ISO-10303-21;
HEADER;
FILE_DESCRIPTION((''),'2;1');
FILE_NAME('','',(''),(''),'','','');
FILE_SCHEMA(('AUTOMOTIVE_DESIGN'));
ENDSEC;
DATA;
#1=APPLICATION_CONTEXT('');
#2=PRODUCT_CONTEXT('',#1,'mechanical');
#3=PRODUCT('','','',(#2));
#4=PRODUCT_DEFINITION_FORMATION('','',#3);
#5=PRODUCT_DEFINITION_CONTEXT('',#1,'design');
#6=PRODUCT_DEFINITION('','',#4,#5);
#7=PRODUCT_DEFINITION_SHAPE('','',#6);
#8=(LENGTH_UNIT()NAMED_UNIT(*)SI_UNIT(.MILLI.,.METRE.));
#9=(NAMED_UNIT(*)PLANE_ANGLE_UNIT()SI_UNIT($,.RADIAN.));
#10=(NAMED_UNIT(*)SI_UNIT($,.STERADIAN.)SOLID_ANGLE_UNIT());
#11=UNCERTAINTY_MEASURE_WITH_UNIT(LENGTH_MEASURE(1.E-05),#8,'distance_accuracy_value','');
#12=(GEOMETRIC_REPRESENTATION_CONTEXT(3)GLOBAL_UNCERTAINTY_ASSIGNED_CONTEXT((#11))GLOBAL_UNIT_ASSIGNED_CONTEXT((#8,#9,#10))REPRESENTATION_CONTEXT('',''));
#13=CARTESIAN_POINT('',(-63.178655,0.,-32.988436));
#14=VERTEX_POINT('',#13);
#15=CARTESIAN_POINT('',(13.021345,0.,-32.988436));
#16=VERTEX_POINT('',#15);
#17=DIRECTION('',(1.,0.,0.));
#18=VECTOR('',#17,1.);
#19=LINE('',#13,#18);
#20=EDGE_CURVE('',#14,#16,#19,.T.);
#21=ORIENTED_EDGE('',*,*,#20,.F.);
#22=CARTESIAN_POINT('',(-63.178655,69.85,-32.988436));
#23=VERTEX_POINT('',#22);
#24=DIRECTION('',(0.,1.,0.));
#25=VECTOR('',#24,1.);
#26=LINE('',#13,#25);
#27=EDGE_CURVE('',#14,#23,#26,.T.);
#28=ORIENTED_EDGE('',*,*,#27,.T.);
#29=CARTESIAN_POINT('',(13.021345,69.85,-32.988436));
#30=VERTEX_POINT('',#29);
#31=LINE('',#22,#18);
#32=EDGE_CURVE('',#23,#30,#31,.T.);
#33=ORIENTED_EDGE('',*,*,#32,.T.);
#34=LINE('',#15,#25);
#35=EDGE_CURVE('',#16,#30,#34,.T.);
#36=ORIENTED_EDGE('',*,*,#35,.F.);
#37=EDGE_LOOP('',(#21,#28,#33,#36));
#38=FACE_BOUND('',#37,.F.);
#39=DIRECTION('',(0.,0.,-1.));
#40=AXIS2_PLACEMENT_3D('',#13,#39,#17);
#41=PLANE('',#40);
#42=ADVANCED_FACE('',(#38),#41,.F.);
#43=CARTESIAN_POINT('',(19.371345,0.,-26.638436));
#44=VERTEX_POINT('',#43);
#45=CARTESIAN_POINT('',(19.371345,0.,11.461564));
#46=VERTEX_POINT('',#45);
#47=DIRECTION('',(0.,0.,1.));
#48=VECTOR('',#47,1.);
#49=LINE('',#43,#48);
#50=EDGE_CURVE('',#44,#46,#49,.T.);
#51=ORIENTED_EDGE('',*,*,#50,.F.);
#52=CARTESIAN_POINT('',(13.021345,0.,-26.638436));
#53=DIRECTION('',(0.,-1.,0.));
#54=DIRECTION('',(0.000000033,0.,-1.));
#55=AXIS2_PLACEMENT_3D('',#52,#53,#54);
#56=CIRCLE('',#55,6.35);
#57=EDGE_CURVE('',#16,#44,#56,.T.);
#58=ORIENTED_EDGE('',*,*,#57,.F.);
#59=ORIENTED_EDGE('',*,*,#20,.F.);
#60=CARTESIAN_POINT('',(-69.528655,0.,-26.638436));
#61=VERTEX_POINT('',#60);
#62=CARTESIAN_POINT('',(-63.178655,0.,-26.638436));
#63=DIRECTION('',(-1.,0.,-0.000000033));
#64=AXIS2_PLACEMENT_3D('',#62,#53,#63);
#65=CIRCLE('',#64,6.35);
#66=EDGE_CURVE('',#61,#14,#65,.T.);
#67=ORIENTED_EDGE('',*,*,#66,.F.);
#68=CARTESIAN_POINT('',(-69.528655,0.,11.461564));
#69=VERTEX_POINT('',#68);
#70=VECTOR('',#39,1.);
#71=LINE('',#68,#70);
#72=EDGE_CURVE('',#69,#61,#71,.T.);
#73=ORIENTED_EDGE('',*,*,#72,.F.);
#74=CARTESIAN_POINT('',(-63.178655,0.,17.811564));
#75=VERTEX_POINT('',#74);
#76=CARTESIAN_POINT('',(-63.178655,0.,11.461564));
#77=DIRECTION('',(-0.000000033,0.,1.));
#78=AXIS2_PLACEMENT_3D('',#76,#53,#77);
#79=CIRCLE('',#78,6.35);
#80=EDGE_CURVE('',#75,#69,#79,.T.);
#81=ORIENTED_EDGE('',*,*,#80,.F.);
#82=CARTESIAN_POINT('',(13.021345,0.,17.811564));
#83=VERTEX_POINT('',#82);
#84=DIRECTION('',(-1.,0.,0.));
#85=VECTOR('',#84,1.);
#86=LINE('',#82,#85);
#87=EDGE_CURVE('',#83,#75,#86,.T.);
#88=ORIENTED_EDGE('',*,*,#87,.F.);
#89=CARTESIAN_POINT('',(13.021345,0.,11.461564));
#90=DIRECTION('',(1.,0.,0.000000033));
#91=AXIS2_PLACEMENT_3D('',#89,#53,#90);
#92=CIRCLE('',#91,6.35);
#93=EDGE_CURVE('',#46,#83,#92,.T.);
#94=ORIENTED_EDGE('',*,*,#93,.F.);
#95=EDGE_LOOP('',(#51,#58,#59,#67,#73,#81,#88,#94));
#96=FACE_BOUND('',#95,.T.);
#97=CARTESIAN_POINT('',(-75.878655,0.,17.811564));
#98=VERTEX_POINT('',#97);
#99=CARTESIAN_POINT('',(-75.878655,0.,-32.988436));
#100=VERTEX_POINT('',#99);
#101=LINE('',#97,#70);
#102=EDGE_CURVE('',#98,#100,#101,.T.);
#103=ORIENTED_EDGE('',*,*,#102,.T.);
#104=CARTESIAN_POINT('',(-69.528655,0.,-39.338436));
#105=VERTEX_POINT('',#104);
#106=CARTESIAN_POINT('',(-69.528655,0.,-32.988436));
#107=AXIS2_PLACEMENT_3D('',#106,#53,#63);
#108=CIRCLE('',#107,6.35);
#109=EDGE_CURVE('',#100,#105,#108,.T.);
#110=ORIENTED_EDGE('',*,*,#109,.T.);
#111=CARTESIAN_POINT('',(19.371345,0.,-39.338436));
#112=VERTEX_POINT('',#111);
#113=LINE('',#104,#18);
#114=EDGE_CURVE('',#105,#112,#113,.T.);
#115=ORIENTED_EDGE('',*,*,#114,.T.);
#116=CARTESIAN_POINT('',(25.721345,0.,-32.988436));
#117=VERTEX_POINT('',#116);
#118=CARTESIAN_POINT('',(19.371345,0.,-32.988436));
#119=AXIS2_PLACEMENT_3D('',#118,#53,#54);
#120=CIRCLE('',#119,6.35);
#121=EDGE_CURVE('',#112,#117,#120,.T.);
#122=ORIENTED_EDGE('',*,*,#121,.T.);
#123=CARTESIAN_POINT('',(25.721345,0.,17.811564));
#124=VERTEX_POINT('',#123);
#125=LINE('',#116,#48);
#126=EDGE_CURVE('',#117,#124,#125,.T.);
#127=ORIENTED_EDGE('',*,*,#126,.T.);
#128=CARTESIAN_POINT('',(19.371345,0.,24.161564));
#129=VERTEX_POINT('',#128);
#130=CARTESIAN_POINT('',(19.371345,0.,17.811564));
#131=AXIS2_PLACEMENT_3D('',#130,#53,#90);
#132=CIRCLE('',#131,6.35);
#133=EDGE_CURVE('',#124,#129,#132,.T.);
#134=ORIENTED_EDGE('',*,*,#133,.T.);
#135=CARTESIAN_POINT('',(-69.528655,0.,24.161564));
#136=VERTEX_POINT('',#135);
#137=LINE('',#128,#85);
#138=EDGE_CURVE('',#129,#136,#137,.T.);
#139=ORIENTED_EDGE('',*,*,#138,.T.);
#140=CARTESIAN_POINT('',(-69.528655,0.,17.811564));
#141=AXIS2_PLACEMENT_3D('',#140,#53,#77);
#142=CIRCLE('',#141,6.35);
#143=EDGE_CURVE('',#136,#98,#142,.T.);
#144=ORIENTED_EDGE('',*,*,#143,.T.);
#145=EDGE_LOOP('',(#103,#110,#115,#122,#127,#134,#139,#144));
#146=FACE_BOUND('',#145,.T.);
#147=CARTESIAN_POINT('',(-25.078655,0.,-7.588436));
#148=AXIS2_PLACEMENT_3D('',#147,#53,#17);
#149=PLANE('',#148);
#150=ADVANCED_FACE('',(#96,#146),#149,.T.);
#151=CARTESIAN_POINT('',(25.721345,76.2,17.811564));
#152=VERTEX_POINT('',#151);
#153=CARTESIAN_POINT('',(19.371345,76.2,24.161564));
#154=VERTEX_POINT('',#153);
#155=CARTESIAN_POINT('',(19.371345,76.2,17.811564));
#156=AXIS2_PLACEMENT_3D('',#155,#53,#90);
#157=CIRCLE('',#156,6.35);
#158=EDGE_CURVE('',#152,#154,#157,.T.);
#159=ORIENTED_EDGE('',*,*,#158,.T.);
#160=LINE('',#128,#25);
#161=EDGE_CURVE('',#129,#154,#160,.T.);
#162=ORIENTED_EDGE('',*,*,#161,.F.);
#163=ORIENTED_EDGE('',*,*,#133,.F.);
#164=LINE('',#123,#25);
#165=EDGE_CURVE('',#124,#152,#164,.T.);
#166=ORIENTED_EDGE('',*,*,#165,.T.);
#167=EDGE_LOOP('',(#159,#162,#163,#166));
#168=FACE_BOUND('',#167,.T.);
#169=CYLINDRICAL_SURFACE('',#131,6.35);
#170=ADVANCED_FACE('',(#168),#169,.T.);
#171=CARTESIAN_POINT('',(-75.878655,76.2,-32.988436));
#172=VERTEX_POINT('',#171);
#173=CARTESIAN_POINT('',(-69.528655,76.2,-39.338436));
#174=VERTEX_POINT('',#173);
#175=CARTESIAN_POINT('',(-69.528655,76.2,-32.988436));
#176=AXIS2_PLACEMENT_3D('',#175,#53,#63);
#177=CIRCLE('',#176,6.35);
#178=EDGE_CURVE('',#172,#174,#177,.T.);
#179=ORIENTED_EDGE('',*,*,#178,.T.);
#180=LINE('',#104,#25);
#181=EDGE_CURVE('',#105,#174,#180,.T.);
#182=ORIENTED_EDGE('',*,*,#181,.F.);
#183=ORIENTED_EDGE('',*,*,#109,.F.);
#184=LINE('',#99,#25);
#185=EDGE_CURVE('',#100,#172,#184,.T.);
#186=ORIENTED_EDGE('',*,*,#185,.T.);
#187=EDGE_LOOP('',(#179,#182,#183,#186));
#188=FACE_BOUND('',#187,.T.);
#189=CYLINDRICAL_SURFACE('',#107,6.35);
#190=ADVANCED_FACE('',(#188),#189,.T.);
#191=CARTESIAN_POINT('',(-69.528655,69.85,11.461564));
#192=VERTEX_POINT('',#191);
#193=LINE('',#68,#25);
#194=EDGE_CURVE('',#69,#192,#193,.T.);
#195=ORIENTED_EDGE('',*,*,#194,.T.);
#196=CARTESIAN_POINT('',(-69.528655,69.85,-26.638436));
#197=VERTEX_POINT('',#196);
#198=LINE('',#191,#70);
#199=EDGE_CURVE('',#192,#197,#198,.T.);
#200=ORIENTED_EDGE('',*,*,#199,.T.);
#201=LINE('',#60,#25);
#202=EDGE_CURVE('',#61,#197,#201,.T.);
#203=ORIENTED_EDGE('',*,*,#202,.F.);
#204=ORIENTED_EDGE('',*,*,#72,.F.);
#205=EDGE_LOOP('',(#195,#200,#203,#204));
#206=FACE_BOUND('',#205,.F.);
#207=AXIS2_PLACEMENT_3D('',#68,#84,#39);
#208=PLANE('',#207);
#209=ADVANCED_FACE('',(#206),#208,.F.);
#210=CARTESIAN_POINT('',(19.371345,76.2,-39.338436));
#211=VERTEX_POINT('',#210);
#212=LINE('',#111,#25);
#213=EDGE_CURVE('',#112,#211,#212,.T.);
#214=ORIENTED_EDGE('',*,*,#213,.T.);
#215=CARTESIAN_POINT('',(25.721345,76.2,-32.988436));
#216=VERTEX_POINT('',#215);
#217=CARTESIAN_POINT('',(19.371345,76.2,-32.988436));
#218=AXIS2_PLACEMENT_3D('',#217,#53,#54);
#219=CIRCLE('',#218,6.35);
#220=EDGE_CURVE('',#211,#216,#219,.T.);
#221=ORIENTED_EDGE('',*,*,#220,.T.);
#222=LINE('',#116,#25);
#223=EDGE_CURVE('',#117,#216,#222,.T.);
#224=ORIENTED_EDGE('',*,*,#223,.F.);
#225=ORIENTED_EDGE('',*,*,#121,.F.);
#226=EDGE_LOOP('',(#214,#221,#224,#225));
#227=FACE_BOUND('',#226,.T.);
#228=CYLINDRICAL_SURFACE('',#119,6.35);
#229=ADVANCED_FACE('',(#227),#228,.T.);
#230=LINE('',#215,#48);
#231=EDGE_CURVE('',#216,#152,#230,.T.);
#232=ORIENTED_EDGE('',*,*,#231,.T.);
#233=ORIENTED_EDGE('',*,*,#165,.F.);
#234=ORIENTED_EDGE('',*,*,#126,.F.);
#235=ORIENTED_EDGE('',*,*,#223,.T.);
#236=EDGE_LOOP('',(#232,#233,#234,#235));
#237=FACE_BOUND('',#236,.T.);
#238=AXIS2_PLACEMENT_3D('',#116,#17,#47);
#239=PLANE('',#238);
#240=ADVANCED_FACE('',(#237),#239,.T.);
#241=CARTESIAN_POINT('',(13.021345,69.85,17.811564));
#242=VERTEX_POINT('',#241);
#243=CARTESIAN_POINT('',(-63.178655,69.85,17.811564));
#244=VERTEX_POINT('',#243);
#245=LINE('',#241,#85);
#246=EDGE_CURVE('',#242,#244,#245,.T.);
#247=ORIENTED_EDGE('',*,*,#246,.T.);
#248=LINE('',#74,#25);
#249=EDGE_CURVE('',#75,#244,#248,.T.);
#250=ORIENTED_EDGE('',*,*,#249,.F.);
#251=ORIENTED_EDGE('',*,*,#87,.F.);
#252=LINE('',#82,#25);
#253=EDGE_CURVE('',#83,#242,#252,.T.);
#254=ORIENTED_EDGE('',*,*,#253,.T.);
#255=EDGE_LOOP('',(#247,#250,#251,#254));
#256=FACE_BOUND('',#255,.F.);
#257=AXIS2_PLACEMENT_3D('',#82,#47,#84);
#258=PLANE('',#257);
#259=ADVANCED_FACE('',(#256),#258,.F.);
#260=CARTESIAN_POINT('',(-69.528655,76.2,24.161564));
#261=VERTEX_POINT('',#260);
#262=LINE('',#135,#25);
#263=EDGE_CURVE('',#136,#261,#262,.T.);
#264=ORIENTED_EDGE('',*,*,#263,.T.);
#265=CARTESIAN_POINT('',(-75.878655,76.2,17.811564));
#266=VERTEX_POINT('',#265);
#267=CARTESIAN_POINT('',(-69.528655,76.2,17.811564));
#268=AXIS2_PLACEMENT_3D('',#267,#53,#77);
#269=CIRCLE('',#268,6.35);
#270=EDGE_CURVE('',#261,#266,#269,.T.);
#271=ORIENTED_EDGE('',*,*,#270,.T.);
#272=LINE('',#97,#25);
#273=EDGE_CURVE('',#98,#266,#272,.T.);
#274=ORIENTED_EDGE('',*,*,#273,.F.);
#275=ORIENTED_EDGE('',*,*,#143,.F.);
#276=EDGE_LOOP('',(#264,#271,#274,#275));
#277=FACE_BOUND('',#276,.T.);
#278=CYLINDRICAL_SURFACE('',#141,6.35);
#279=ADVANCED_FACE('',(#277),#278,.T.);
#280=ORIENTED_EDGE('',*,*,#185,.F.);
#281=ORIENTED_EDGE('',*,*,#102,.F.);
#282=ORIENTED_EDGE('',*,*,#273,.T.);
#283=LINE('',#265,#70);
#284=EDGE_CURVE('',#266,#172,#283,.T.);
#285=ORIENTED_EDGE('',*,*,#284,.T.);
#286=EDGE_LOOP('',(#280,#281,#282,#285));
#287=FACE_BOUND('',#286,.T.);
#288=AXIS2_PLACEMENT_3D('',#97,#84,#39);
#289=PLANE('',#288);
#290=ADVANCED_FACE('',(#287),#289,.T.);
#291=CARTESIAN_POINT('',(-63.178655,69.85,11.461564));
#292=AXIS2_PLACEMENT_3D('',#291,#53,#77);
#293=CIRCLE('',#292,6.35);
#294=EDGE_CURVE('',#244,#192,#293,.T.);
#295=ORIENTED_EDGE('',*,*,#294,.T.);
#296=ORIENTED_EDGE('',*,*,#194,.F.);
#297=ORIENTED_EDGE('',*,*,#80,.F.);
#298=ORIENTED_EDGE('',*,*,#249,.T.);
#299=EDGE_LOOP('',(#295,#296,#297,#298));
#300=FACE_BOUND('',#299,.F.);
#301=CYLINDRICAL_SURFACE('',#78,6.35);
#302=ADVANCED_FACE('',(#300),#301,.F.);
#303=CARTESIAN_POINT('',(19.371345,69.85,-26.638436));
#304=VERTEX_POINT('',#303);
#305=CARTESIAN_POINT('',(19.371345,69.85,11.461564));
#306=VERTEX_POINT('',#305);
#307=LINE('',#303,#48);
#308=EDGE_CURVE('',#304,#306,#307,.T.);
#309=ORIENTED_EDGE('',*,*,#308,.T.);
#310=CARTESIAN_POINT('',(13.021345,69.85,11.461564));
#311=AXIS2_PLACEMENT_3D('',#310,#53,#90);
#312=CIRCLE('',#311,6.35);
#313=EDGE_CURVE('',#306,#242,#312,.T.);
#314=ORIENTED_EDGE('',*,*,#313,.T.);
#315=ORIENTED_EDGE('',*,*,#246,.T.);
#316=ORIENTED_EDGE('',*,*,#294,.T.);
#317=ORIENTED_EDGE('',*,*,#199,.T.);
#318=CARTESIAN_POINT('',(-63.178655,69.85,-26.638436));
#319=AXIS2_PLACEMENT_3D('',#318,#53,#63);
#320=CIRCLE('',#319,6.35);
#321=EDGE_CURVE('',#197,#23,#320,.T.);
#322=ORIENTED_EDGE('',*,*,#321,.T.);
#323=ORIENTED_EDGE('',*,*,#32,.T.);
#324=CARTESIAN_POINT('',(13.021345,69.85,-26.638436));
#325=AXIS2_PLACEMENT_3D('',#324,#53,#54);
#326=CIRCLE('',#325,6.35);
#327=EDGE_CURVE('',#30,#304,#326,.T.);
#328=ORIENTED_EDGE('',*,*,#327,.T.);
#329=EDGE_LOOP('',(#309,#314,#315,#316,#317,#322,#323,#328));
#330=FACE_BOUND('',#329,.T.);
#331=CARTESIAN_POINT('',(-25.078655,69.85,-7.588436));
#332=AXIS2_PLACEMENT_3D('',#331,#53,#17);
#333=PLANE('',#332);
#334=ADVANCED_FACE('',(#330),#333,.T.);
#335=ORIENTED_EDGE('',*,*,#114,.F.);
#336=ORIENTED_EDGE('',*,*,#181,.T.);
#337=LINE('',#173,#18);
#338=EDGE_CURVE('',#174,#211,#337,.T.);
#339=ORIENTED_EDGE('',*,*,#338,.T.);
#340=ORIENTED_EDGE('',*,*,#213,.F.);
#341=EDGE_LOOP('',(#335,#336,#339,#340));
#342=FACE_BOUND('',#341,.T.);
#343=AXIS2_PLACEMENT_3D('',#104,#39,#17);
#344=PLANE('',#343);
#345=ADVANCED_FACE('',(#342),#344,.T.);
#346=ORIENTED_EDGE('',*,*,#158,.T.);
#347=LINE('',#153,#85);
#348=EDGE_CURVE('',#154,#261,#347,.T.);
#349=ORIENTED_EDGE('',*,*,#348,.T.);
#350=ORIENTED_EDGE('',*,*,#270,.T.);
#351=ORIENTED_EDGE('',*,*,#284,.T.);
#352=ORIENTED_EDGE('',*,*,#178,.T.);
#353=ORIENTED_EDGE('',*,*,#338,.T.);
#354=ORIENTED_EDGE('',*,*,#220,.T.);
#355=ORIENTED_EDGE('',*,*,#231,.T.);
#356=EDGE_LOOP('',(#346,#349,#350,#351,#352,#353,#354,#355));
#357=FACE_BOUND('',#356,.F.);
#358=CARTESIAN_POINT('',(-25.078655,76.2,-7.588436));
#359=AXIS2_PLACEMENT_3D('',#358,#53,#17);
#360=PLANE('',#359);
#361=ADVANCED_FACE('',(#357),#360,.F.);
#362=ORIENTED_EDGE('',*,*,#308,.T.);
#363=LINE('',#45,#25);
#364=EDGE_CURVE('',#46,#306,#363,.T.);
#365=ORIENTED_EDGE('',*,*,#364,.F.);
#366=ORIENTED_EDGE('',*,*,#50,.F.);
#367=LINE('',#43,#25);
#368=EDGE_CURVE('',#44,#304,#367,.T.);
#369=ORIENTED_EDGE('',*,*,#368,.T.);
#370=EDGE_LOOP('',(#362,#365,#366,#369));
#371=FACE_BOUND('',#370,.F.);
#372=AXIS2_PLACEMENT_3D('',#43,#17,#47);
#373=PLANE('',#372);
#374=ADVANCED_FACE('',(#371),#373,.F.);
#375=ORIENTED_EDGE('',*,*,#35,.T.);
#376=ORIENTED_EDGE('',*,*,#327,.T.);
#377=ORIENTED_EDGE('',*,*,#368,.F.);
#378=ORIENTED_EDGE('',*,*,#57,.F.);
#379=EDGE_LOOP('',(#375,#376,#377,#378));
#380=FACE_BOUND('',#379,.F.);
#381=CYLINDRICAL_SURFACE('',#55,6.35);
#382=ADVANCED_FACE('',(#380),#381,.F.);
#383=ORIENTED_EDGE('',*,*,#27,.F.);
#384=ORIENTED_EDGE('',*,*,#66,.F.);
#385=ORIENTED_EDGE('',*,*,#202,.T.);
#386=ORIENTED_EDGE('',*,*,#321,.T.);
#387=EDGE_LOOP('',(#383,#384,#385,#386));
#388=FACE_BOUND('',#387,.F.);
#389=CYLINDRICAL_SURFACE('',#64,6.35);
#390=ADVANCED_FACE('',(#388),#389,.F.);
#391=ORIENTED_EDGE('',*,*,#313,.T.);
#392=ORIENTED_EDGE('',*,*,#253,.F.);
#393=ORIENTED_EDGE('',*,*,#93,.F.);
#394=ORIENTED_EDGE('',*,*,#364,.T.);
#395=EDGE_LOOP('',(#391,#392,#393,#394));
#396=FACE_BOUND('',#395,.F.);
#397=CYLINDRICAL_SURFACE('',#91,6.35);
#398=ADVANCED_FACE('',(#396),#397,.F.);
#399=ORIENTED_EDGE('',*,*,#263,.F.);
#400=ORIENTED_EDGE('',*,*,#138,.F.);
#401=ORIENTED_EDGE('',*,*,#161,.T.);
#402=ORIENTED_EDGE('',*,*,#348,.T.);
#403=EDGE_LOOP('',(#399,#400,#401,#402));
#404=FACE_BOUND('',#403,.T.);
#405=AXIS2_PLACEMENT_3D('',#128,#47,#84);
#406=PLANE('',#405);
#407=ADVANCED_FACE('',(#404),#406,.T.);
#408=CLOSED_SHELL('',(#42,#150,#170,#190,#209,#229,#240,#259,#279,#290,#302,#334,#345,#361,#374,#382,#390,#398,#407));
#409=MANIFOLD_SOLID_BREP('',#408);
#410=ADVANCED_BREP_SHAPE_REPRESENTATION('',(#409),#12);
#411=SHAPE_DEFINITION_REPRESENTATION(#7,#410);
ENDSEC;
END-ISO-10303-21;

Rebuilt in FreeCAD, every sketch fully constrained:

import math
import FreeCAD as App
import Part
import Sketcher
Q = App.Units.Quantity

doc = App.newDocument("Part")
params = doc.addObject("Spreadsheet::Sheet", "Params")
for row, (alias, value) in enumerate([
    ("sketch1_height", "2 in"),
    ("sketch1_radius", "0.25 in"),
    ("sketch1_width", "3.5 in"),
    ("pad1_length", "3 in"),
    ("sketch2_width", "3 in"),
    ("sketch2_radius", "0.25 in"),
    ("sketch2_height", "1.5 in"),
    ("pocket1_length", "2.75 in"),
], start=1):
    params.set(f"A{row}", alias)
    params.set(f"B{row}", "=" + value)
    params.setAlias(f"B{row}", alias)

body = doc.addObject("PartDesign::Body", "Body")

# Sketch on XZ plane
sketch1 = body.newObject("Sketcher::SketchObject", "Sketch")
sketch1.AttachmentSupport = (doc.getObject("XZ_Plane"), [""])
sketch1.MapMode = "FlatFace"
sketch1.addGeometry([
    Part.LineSegment(App.Vector(19, 24, 0), App.Vector(-70, 24, 0)),  # 0
    Part.ArcOfCircle(Part.Circle(App.Vector(-70, 18, 0), App.Vector(0, 0, 1), 6), math.radians(90), math.radians(180)),  # 1
    Part.LineSegment(App.Vector(-76, 18, 0), App.Vector(-76, -33, 0)),  # 2
    Part.ArcOfCircle(Part.Circle(App.Vector(-70, -33, 0), App.Vector(0, 0, 1), 6), math.radians(-180), math.radians(-90)),  # 3
    Part.LineSegment(App.Vector(-70, -39, 0), App.Vector(19, -39, 0)),  # 4
    Part.ArcOfCircle(Part.Circle(App.Vector(19, -33, 0), App.Vector(0, 0, 1), 6), math.radians(-90), math.radians(0)),  # 5
    Part.LineSegment(App.Vector(26, -33, 0), App.Vector(26, 18, 0)),  # 6
    Part.ArcOfCircle(Part.Circle(App.Vector(19, 18, 0), App.Vector(0, 0, 1), 6), math.radians(0), math.radians(90)),  # 7
], False)
sketch1.addConstraint([
    Sketcher.Constraint("Tangent", 0, 2, 1, 1),
    Sketcher.Constraint("Tangent", 1, 2, 2, 1),
    Sketcher.Constraint("Tangent", 2, 2, 3, 1),
    Sketcher.Constraint("Tangent", 3, 2, 4, 1),
    Sketcher.Constraint("Tangent", 4, 2, 5, 1),
    Sketcher.Constraint("Tangent", 5, 2, 6, 1),
    Sketcher.Constraint("Tangent", 6, 2, 7, 1),
    Sketcher.Constraint("Tangent", 7, 2, 0, 1),
    Sketcher.Constraint("Horizontal", 0),
    Sketcher.Constraint("Vertical", 2),
    Sketcher.Constraint("Horizontal", 4),
    Sketcher.Constraint("Vertical", 6),
    Sketcher.Constraint("Equal", 1, 3),
    Sketcher.Constraint("Equal", 3, 5),
    Sketcher.Constraint("Equal", 5, 7),
    Sketcher.Constraint("DistanceY", 2, 2, 2, 1, Q("2 in")),
    Sketcher.Constraint("Radius", 1, Q("0.25 in")),
    Sketcher.Constraint("DistanceX", 0, 2, 0, 1, Q("3.5 in")),
    Sketcher.Constraint("DistanceX", 1, 3, -1, 1, 69.528655),
    Sketcher.Constraint("DistanceY", -1, 1, 1, 3, 17.811564),
])
sketch1.setExpression("Constraints[15]", "Params.sketch1_height")
sketch1.setExpression("Constraints[16]", "Params.sketch1_radius")
sketch1.setExpression("Constraints[17]", "Params.sketch1_width")
pad1 = body.newObject("PartDesign::Pad", "Pad")
pad1.Profile = sketch1
pad1.setExpression("Length", "Params.pad1_length")
pad1.Reversed = True

# Sketch on XZ plane
sketch2 = body.newObject("Sketcher::SketchObject", "Sketch001")
sketch2.AttachmentSupport = (doc.getObject("XZ_Plane"), [""])
sketch2.MapMode = "FlatFace"
sketch2.addGeometry([
    Part.LineSegment(App.Vector(13, 18, 0), App.Vector(-63, 18, 0)),  # 0
    Part.ArcOfCircle(Part.Circle(App.Vector(-63, 11, 0), App.Vector(0, 0, 1), 6), math.radians(90), math.radians(180)),  # 1
    Part.LineSegment(App.Vector(-70, 11, 0), App.Vector(-70, -27, 0)),  # 2
    Part.ArcOfCircle(Part.Circle(App.Vector(-63, -27, 0), App.Vector(0, 0, 1), 6), math.radians(-180), math.radians(-90)),  # 3
    Part.LineSegment(App.Vector(-63, -33, 0), App.Vector(13, -33, 0)),  # 4
    Part.ArcOfCircle(Part.Circle(App.Vector(13, -27, 0), App.Vector(0, 0, 1), 6), math.radians(-90), math.radians(0)),  # 5
    Part.LineSegment(App.Vector(19, -27, 0), App.Vector(19, 11, 0)),  # 6
    Part.ArcOfCircle(Part.Circle(App.Vector(13, 11, 0), App.Vector(0, 0, 1), 6), math.radians(0), math.radians(90)),  # 7
], False)
sketch2.addConstraint([
    Sketcher.Constraint("Tangent", 0, 2, 1, 1),
    Sketcher.Constraint("Tangent", 1, 2, 2, 1),
    Sketcher.Constraint("Tangent", 2, 2, 3, 1),
    Sketcher.Constraint("Tangent", 3, 2, 4, 1),
    Sketcher.Constraint("Tangent", 4, 2, 5, 1),
    Sketcher.Constraint("Tangent", 5, 2, 6, 1),
    Sketcher.Constraint("Tangent", 6, 2, 7, 1),
    Sketcher.Constraint("Tangent", 7, 2, 0, 1),
    Sketcher.Constraint("Horizontal", 0),
    Sketcher.Constraint("Vertical", 2),
    Sketcher.Constraint("Horizontal", 4),
    Sketcher.Constraint("Vertical", 6),
    Sketcher.Constraint("Equal", 1, 3),
    Sketcher.Constraint("Equal", 3, 5),
    Sketcher.Constraint("Equal", 5, 7),
    Sketcher.Constraint("DistanceX", 0, 2, 0, 1, Q("3 in")),
    Sketcher.Constraint("Radius", 1, Q("0.25 in")),
    Sketcher.Constraint("DistanceY", 2, 2, 2, 1, Q("1.5 in")),
    Sketcher.Constraint("DistanceX", 1, 3, -1, 1, 63.178655),
    Sketcher.Constraint("DistanceY", -1, 1, 1, 3, 11.461564),
])
sketch2.setExpression("Constraints[15]", "Params.sketch2_width")
sketch2.setExpression("Constraints[16]", "Params.sketch2_radius")
sketch2.setExpression("Constraints[17]", "Params.sketch2_height")
pocket1 = body.newObject("PartDesign::Pocket", "Pocket")
pocket1.Profile = sketch2
pocket1.setExpression("Length", "Params.pocket1_length")

doc.recompute()
